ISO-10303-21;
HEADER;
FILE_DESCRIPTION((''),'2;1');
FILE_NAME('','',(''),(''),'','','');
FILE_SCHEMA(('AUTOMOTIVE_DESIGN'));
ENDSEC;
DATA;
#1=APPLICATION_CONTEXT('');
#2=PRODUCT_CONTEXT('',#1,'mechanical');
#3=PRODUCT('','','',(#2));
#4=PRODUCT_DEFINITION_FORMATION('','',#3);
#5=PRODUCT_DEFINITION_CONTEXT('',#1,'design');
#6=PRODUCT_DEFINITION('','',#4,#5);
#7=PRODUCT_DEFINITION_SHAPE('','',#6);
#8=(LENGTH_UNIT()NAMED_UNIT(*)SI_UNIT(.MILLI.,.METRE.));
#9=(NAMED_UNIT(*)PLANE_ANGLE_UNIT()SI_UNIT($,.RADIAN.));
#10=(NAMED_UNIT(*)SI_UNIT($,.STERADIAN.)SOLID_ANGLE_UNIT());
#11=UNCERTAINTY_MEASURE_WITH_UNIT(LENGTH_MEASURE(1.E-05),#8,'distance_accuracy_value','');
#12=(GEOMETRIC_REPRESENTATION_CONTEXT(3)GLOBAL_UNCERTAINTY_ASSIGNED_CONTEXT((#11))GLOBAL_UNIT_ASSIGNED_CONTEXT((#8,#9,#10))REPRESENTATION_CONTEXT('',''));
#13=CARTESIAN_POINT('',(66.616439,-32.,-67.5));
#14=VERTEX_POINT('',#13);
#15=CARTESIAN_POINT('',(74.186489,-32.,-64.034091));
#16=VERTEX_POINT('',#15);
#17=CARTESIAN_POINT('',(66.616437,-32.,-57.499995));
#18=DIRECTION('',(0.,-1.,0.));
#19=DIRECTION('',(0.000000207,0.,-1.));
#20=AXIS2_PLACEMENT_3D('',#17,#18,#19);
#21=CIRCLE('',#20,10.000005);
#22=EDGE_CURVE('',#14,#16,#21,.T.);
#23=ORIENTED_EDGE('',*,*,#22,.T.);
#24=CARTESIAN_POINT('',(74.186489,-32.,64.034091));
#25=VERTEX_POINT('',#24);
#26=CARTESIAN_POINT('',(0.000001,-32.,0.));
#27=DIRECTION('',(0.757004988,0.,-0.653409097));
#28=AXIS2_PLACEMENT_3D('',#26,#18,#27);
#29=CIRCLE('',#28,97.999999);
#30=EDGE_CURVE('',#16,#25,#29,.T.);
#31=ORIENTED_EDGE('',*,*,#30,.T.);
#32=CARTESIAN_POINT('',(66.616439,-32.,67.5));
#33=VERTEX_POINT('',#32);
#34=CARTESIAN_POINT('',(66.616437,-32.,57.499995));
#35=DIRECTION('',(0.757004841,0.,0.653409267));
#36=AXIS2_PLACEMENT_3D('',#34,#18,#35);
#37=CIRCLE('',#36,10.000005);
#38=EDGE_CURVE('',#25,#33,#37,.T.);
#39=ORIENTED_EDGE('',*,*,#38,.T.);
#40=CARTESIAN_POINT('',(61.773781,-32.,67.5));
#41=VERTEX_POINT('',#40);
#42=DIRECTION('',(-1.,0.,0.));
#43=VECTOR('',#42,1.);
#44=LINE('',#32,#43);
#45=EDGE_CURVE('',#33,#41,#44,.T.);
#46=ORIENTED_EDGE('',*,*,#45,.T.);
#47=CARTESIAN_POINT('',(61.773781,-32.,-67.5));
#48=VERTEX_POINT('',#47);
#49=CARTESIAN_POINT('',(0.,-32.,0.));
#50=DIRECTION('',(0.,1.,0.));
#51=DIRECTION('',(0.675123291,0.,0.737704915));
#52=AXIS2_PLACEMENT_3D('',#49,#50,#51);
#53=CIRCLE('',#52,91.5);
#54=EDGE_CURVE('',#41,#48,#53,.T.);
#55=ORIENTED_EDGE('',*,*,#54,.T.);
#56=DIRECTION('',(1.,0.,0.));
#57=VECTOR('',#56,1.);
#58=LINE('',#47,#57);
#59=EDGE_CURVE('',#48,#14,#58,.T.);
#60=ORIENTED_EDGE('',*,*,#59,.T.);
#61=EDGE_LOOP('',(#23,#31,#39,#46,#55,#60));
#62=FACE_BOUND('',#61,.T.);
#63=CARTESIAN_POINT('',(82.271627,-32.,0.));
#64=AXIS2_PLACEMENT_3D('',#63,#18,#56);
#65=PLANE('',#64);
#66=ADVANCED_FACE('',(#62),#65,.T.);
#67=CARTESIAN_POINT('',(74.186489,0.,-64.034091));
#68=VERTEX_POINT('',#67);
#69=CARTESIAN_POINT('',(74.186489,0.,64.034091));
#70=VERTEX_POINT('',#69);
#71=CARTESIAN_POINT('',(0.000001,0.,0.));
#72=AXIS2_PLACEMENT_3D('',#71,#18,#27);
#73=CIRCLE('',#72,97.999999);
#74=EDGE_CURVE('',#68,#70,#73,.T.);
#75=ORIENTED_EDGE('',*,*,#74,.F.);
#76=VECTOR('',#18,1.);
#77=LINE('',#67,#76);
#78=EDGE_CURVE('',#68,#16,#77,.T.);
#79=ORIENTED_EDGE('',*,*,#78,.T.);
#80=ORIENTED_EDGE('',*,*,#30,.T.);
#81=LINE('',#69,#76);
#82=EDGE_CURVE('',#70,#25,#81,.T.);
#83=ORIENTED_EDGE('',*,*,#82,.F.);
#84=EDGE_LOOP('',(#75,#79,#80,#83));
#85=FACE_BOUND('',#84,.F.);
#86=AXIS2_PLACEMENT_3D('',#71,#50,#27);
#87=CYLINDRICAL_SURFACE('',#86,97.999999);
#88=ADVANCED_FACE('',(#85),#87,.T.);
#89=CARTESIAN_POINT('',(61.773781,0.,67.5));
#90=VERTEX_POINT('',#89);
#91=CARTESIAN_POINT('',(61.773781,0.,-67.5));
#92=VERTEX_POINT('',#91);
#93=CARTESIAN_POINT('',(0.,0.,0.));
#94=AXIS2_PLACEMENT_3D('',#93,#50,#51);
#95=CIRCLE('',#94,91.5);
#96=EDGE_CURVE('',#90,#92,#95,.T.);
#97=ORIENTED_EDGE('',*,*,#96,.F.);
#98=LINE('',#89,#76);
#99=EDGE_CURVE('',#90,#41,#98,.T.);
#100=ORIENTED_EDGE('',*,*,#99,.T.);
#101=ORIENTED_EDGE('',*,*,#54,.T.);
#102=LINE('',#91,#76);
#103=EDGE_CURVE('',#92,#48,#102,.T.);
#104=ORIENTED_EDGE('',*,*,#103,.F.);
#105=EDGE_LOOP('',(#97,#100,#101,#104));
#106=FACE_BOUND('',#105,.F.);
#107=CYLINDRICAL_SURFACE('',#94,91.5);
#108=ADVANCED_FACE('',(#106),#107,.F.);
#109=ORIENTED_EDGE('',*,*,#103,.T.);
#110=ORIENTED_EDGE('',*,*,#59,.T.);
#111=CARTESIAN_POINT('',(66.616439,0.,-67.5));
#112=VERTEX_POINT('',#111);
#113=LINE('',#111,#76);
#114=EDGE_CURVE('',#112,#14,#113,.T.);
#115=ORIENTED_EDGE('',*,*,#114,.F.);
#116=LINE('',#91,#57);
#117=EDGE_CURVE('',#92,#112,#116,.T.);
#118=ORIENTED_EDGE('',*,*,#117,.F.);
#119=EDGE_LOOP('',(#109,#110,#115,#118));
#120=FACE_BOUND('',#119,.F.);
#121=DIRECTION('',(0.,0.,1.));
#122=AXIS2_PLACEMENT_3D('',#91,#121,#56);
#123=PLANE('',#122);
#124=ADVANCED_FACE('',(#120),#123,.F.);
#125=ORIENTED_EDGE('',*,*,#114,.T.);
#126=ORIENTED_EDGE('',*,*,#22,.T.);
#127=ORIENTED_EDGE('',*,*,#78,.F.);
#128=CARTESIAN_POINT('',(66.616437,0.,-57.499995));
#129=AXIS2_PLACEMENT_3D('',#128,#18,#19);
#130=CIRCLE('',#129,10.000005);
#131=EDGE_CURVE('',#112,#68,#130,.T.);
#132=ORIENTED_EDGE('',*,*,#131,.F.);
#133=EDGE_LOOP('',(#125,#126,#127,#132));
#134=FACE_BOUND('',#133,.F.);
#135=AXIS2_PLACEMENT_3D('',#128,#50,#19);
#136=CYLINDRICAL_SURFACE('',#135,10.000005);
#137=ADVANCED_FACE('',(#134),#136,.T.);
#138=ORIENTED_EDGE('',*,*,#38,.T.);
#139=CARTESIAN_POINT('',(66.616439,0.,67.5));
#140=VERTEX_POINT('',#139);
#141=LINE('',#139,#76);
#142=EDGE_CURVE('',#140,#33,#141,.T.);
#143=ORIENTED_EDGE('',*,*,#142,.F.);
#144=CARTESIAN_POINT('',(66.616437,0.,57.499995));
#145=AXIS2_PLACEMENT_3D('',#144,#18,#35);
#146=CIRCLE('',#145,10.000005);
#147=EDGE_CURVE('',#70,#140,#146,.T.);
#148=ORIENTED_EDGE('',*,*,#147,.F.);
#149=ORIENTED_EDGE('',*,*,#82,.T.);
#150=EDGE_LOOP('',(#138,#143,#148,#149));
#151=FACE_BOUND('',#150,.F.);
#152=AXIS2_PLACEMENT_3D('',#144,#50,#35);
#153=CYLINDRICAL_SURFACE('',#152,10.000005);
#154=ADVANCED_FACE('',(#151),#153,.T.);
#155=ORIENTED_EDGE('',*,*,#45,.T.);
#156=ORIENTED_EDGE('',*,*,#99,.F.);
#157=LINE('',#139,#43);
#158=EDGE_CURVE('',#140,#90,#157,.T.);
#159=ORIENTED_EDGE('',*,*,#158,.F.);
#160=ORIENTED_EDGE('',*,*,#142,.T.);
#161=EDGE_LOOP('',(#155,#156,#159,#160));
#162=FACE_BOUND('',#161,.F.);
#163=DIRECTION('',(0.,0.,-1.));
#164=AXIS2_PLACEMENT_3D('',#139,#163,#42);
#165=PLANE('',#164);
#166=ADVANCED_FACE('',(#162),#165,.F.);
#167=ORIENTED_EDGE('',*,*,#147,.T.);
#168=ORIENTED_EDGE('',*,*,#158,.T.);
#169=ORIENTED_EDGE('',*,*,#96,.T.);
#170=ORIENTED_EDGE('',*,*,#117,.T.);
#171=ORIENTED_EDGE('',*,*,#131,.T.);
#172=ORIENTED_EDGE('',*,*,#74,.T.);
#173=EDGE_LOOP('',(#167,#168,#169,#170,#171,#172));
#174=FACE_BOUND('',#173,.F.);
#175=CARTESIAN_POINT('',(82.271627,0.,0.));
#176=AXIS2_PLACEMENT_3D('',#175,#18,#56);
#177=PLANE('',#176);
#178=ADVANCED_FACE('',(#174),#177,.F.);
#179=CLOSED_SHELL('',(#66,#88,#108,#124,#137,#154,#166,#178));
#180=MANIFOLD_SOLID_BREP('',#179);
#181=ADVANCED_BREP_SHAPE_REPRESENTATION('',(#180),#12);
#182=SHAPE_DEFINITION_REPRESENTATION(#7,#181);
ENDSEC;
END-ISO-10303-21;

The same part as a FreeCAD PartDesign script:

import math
import FreeCAD as App
import Part
import Sketcher
from FreeCAD import Vector
Q = App.Units.Quantity

doc = App.newDocument("Part")
body = doc.addObject("PartDesign::Body", "Body")

# Sketch on XZ plane
sketch1 = body.newObject("Sketcher::SketchObject", "Sketch")
sketch1.AttachmentSupport = (doc.getObject("XZ_Plane"), [""])
sketch1.MapMode = "FlatFace"
sketch1.addGeometry([
    Part.ArcOfCircle(Part.Circle(Vector(0, 0, 0), Vector(0, 0, 1), 91.5), math.radians(-48), math.radians(48)),  # 0
    Part.LineSegment(Vector(61.8, -67.5, 0), Vector(66.6, -67.5, 0)),  # 1
    Part.ArcOfCircle(Part.Circle(Vector(66.6, -57.5, 0), Vector(0, 0, 1), 10), math.radians(-90), math.radians(-41)),  # 2
    Part.ArcOfCircle(Part.Circle(Vector(0, 0, 0), Vector(0, 0, 1), 98), math.radians(-41), math.radians(41)),  # 3
    Part.ArcOfCircle(Part.Circle(Vector(66.6, 57.5, 0), Vector(0, 0, 1), 10), math.radians(41), math.radians(90)),  # 4
    Part.LineSegment(Vector(66.6, 67.5, 0), Vector(61.8, 67.5, 0)),  # 5
], False)
sketch1.addConstraint([
    Sketcher.Constraint("Coincident", 0, 1, 1, 1),
    Sketcher.Constraint("Tangent", 1, 2, 2, 1),
    Sketcher.Constraint("Tangent", 2, 2, 3, 1),
    Sketcher.Constraint("Tangent", 3, 2, 4, 1),
    Sketcher.Constraint("Tangent", 4, 2, 5, 1),
    Sketcher.Constraint("Coincident", 5, 2, 0, 2),
    Sketcher.Constraint("Horizontal", 1),
    Sketcher.Constraint("Horizontal", 5),
    Sketcher.Constraint("Coincident", 0, 3, -1, 1),
    Sketcher.Constraint("Coincident", 3, 3, -1, 1),
    Sketcher.Constraint("Equal", 2, 4),
    Sketcher.Constraint("Vertical", 2, 3, 4, 3),
    Sketcher.Constraint("Radius", 3, Q("97.999999 mm")),
    Sketcher.Constraint("Radius", 0, Q("91.5 mm")),
    Sketcher.Constraint("DistanceY", 0, 1, -1, 1, Q("67.5 mm")),
    Sketcher.Constraint("Radius", 2, Q("10.000005 mm")),
])
pad1 = body.newObject("PartDesign::Pad", "Pad")
pad1.Profile = sketch1
pad1.Length = 32

doc.recompute()
